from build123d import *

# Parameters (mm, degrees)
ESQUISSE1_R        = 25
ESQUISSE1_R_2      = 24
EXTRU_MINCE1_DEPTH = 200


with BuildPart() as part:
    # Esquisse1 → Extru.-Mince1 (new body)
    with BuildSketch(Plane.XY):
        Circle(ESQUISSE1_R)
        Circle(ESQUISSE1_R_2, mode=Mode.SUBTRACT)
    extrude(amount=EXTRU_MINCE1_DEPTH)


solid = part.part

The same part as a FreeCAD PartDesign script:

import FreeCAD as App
import Part
import Sketcher

doc = App.newDocument("Part")
params = doc.addObject("Spreadsheet::Sheet", "Params")
for row, (alias, value) in enumerate([
    ("sketch1_diameter", "50 mm"),
    ("sketch1_diameter2", "48 mm"),
    ("pad1_length", "200 mm"),
], start=1):
    params.set(f"A{row}", alias)
    params.set(f"B{row}", "=" + value)
    params.setAlias(f"B{row}", alias)

body = doc.addObject("PartDesign::Body", "Body")

sketch1 = body.newObject("Sketcher::SketchObject", "Sketch")
sketch1.AttachmentSupport = (doc.getObject("XY_Plane"), [""])
sketch1.MapMode = "FlatFace"
sketch1.addGeometry(Part.Circle(App.Vector(0, 0, 0), App.Vector(0, 0, 1), 25), False)
sketch1.addGeometry(Part.Circle(App.Vector(0, 0, 0), App.Vector(0, 0, 1), 24), False)
sketch1.addConstraint(Sketcher.Constraint("Coincident", 0, 3, -1, 1))
sketch1.addConstraint(Sketcher.Constraint("Coincident", 1, 3, -1, 1))
sketch1.addConstraint(Sketcher.Constraint("Diameter", 0, 50.0))
sketch1.addConstraint(Sketcher.Constraint("Diameter", 1, 48.0))
sketch1.setExpression("Constraints[2]", "Params.sketch1_diameter")
sketch1.setExpression("Constraints[3]", "Params.sketch1_diameter2")
pad1 = body.newObject("PartDesign::Pad", "Pad")
pad1.Profile = sketch1
pad1.setExpression("Length", "Params.pad1_length")

doc.recompute()
